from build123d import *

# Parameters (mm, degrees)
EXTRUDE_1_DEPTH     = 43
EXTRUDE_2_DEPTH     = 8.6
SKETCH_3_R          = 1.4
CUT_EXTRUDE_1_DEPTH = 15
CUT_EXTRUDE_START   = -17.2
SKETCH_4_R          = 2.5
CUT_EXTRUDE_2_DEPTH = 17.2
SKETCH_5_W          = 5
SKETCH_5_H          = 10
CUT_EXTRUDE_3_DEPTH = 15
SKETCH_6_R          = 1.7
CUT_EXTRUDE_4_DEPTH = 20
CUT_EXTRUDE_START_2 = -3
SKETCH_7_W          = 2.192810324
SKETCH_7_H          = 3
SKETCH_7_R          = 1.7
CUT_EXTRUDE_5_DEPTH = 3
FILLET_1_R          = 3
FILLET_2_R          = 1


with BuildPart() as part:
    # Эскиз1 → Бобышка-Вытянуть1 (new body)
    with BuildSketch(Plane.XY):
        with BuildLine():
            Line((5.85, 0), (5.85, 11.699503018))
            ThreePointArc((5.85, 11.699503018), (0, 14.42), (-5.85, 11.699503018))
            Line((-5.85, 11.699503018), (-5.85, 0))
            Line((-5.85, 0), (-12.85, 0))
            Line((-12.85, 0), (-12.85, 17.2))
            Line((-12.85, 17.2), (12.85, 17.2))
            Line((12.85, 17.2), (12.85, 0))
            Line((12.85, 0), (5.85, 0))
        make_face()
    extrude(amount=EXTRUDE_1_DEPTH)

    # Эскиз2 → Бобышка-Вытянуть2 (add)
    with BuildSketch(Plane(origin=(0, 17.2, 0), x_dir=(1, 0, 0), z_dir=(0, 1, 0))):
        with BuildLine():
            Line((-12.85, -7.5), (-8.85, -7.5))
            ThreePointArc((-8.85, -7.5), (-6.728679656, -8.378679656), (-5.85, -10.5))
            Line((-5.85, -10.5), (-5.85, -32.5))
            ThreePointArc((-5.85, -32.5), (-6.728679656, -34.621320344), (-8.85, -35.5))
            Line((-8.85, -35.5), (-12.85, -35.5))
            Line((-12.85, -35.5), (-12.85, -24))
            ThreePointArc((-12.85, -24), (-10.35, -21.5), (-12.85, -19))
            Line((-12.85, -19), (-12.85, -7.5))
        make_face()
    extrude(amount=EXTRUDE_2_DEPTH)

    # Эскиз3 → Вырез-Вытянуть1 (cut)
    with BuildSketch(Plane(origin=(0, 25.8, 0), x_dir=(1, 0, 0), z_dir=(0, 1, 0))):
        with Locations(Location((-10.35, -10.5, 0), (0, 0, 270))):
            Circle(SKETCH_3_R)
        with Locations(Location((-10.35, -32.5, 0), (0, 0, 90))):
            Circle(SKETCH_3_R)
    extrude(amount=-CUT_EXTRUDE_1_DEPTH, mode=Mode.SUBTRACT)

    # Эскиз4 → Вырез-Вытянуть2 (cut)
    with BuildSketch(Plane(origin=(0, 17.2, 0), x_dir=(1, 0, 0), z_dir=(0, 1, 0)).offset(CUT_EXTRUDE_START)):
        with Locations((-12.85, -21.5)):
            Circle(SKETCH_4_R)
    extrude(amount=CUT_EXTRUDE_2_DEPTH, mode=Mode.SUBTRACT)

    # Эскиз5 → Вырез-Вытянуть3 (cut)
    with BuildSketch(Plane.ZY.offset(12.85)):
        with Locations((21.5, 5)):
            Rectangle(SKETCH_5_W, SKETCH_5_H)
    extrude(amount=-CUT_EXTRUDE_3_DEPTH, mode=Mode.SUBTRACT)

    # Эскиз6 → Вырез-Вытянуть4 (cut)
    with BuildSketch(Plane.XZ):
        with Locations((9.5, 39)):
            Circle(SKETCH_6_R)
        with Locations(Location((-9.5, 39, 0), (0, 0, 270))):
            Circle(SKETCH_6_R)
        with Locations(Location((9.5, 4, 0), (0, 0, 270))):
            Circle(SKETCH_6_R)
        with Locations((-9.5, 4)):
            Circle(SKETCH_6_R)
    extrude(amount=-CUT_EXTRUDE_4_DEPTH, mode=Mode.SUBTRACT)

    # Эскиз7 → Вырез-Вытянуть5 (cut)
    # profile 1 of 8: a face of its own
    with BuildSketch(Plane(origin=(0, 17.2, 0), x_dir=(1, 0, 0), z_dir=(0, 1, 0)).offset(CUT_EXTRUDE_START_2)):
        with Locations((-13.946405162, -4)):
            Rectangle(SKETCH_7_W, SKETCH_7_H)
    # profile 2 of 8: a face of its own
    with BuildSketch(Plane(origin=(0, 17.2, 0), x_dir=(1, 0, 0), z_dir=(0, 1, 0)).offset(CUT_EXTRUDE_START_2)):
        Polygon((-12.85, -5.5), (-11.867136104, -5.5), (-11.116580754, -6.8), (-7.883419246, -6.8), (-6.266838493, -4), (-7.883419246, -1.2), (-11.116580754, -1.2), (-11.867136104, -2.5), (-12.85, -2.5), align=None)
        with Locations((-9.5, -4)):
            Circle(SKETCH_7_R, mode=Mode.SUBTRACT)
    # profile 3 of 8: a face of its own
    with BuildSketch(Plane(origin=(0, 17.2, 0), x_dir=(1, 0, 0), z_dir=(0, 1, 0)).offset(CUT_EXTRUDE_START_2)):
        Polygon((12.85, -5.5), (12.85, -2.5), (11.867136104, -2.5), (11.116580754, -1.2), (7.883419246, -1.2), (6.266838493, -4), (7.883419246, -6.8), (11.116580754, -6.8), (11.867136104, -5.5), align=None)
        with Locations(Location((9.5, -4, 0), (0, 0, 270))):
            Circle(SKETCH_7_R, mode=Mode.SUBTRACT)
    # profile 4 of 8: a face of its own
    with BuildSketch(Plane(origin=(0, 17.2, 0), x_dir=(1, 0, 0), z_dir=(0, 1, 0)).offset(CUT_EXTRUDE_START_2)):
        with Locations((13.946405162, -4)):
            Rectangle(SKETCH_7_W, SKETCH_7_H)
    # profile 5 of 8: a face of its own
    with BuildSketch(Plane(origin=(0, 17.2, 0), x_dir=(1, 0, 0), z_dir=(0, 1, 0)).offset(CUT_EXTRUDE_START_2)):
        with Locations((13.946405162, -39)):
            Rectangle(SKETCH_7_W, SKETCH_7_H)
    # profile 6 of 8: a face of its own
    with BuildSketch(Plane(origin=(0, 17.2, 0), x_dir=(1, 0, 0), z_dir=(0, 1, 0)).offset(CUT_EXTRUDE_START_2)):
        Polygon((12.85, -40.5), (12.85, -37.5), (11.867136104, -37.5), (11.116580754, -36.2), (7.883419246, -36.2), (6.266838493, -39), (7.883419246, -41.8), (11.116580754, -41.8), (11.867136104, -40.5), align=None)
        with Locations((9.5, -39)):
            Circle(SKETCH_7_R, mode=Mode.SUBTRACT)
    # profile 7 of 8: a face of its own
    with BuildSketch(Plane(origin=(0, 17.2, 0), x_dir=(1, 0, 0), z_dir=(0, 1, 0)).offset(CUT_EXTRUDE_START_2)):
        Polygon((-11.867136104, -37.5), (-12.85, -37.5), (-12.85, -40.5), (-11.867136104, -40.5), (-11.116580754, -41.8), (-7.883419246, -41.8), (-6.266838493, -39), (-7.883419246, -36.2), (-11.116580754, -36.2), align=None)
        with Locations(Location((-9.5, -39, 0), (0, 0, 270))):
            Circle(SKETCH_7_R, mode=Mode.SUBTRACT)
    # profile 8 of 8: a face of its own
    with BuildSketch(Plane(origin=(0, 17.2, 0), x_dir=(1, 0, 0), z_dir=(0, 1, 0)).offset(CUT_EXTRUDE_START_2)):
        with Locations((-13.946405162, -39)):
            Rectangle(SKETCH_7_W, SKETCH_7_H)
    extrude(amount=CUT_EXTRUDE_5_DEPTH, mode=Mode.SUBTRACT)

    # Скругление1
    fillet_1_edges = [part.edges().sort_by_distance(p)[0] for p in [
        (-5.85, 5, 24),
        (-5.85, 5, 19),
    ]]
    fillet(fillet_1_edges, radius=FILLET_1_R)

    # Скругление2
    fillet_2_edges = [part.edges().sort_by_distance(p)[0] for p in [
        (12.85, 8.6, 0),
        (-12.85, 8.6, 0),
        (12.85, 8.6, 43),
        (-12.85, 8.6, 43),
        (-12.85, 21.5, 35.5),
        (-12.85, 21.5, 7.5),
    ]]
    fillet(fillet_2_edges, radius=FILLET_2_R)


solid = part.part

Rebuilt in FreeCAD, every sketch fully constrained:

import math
import FreeCAD as App
import Part
import Sketcher
Q = App.Units.Quantity


def edges_at(feature, points):
    """Names of the edges that pass closest to the given points."""
    edges = feature.Shape.Edges
    near = lambda p: min(range(len(edges)), key=lambda i: edges[i].distToShape(Part.Vertex(*p))[0])
    return sorted({f"Edge{near(p) + 1}" for p in points})


def add_polygon(sketch, points):
    """Adds a closed chain of lines whose ends are joined by coincident constraints."""
    first, n = sketch.GeometryCount, len(points)
    for a, b in zip(points, points[1:] + points[:1]):
        sketch.addGeometry(Part.LineSegment(App.Vector(*a, 0), App.Vector(*b, 0)), False)
    for i in range(n):
        sketch.addConstraint(Sketcher.Constraint("Coincident", first + i, 2, first + (i + 1) % n, 1))

doc = App.newDocument("Part")
params = doc.addObject("Spreadsheet::Sheet", "Params")
for row, (alias, value) in enumerate([
    ("sketch1_width", "7 mm"),
    ("sketch1_radius", "7.65 mm"),
    ("sketch1_width2", "25.7 mm"),
    ("sketch1_height", "17.2 mm"),
    ("pad1_length", "43 mm"),
    ("sketch2_radius", "3 mm"),
    ("sketch2_radius2", "2.5 mm"),
    ("sketch2_width", "4 mm"),
    ("sketch2_height", "22 mm"),
    ("pad2_length", "8.6 mm"),
    ("sketch3_diameter", "2.8 mm"),
    ("pocket1_length", "15 mm"),
    ("sketch4_diameter", "5 mm"),
    ("pocket2_length", "17.2 mm"),
    ("sketch5_width", "10 mm"),
    ("sketch5_height", "5 mm"),
    ("pocket3_length", "15 mm"),
    ("sketch6_diameter", "3.4 mm"),
    ("pocket4_length", "20 mm"),
    ("sketch7_diameter", "3.4 mm"),
    ("sketch7_height", "3 mm"),
    ("pocket5_length", "3 mm"),
    ("fillet_radius", "3 mm"),
    ("fillet2_radius", "1 mm"),
], start=1):
    params.set(f"A{row}", alias)
    params.set(f"B{row}", "=" + value)
    params.setAlias(f"B{row}", alias)

body = doc.addObject("PartDesign::Body", "Body")

# Sketch on XY plane
sketch1 = body.newObject("Sketcher::SketchObject", "Sketch")
sketch1.AttachmentSupport = (doc.getObject("XY_Plane"), [""])
sketch1.MapMode = "FlatFace"
sketch1.addGeometry([
    Part.LineSegment(App.Vector(5.85, 11.699503, 0), App.Vector(5.85, 0, 0)),  # 0
    Part.LineSegment(App.Vector(5.85, 0, 0), App.Vector(12.85, 0, 0)),  # 1
    Part.LineSegment(App.Vector(12.85, 0, 0), App.Vector(12.85, 17.2, 0)),  # 2
    Part.LineSegment(App.Vector(12.85, 17.2, 0), App.Vector(-12.85, 17.2, 0)),  # 3
    Part.LineSegment(App.Vector(-12.85, 17.2, 0), App.Vector(-12.85, 0, 0)),  # 4
    Part.LineSegment(App.Vector(-12.85, 0, 0), App.Vector(-5.85, 0, 0)),  # 5
    Part.LineSegment(App.Vector(-5.85, 0, 0), App.Vector(-5.85, 11.699503, 0)),  # 6
    Part.ArcOfCircle(Part.Circle(App.Vector(0, 6.77, 0), App.Vector(0, 0, 1), 7.65), math.radians(40.119167), math.radians(139.880833)),  # 7
], False)
sketch1.addConstraint([
    Sketcher.Constraint("Coincident", 0, 2, 1, 1),
    Sketcher.Constraint("Coincident", 1, 2, 2, 1),
    Sketcher.Constraint("Coincident", 2, 2, 3, 1),
    Sketcher.Constraint("Coincident", 3, 2, 4, 1),
    Sketcher.Constraint("Coincident", 4, 2, 5, 1),
    Sketcher.Constraint("Coincident", 5, 2, 6, 1),
    Sketcher.Constraint("Coincident", 6, 2, 7, 2),
    Sketcher.Constraint("Coincident", 7, 1, 0, 1),
    Sketcher.Constraint("Vertical", 0),
    Sketcher.Constraint("Horizontal", 1),
    Sketcher.Constraint("Vertical", 2),
    Sketcher.Constraint("Horizontal", 3),
    Sketcher.Constraint("Vertical", 4),
    Sketcher.Constraint("Horizontal", 5),
    Sketcher.Constraint("Vertical", 6),
    Sketcher.Constraint("Symmetric", 1, 2, 4, 2, -1, 1),
    Sketcher.Constraint("Symmetric", 0, 2, 5, 2, -2),
    Sketcher.Constraint("PointOnObject", 7, 3, -2),
    Sketcher.Constraint("DistanceX", 1, 1, 1, 2, 7.0),
    Sketcher.Constraint("Radius", 7, 7.65),
    Sketcher.Constraint("DistanceX", 3, 2, 3, 1, 25.7),
    Sketcher.Constraint("DistanceY", 2, 1, 2, 2, 17.2),
    Sketcher.Constraint("DistanceY", -1, 1, 7, 3, 6.77),
])
sketch1.setExpression("Constraints[18]", "Params.sketch1_width")
sketch1.setExpression("Constraints[19]", "Params.sketch1_radius")
sketch1.setExpression("Constraints[20]", "Params.sketch1_width2")
sketch1.setExpression("Constraints[21]", "Params.sketch1_height")
pad1 = body.newObject("PartDesign::Pad", "Pad")
pad1.Profile = sketch1
pad1.setExpression("Length", "Params.pad1_length")

# Sketch on XZ plane
sketch2 = body.newObject("Sketcher::SketchObject", "Sketch001")
sketch2.AttachmentSupport = (doc.getObject("XZ_Plane"), [""])
sketch2.MapMode = "FlatFace"
sketch2.AttachmentOffset = App.Placement(App.Vector(0, 0, -17.2), App.Rotation())
sketch2.addGeometry([
    Part.LineSegment(App.Vector(-8.85, 7.5, 0), App.Vector(-12.85, 7.5, 0)),  # 0
    Part.LineSegment(App.Vector(-12.85, 7.5, 0), App.Vector(-12.85, 19, 0)),  # 1
    Part.ArcOfCircle(Part.Circle(App.Vector(-12.85, 21.5, 0), App.Vector(0, 0, 1), 2.5), math.radians(-90), math.radians(90)),  # 2
    Part.LineSegment(App.Vector(-12.85, 24, 0), App.Vector(-12.85, 35.5, 0)),  # 3
    Part.LineSegment(App.Vector(-12.85, 35.5, 0), App.Vector(-8.85, 35.5, 0)),  # 4
    Part.ArcOfCircle(Part.Circle(App.Vector(-8.85, 32.5, 0), App.Vector(0, 0, 1), 3), math.radians(0), math.radians(90)),  # 5
    Part.LineSegment(App.Vector(-5.85, 32.5, 0), App.Vector(-5.85, 10.5, 0)),  # 6
    Part.ArcOfCircle(Part.Circle(App.Vector(-8.85, 10.5, 0), App.Vector(0, 0, 1), 3), math.radians(-90), math.radians(0)),  # 7
], False)
sketch2.addConstraint([
    Sketcher.Constraint("Coincident", 0, 2, 1, 1),
    Sketcher.Constraint("Coincident", 1, 2, 2, 1),
    Sketcher.Constraint("Coincident", 2, 2, 3, 1),
    Sketcher.Constraint("Coincident", 3, 2, 4, 1),
    Sketcher.Constraint("Tangent", 4, 2, 5, 2),
    Sketcher.Constraint("Tangent", 5, 1, 6, 1),
    Sketcher.Constraint("Tangent", 6, 2, 7, 2),
    Sketcher.Constraint("Tangent", 7, 1, 0, 1),
    Sketcher.Constraint("Horizontal", 0),
    Sketcher.Constraint("Vertical", 1),
    Sketcher.Constraint("Vertical", 3),
    Sketcher.Constraint("Horizontal", 4),
    Sketcher.Constraint("Vertical", 6),
    Sketcher.Constraint("Equal", 5, 7),
    Sketcher.Constraint("Vertical", 2, 3, 0, 2),
    Sketcher.Constraint("Vertical", 1, 2, 2, 2),
    Sketcher.Constraint("Equal", 1, 3),
    Sketcher.Constraint("Radius", 5, 3.0),
    Sketcher.Constraint("Radius", 2, 2.5),
    Sketcher.Constraint("DistanceX", 0, 2, 0, 1, 4.0),
    Sketcher.Constraint("DistanceY", 6, 2, 6, 1, 22.0),
    Sketcher.Constraint("DistanceY", -1, 1, 1, 2, 19.0),
    Sketcher.Constraint("DistanceX", 2, 3, -1, 1, 12.85),
])
sketch2.setExpression("Constraints[17]", "Params.sketch2_radius")
sketch2.setExpression("Constraints[18]", "Params.sketch2_radius2")
sketch2.setExpression("Constraints[19]", "Params.sketch2_width")
sketch2.setExpression("Constraints[20]", "Params.sketch2_height")
pad2 = body.newObject("PartDesign::Pad", "Pad001")
pad2.Profile = sketch2
pad2.setExpression("Length", "Params.pad2_length")
pad2.Reversed = True

# Sketch on XZ plane
sketch3 = body.newObject("Sketcher::SketchObject", "Sketch002")
sketch3.AttachmentSupport = (doc.getObject("XZ_Plane"), [""])
sketch3.MapMode = "FlatFace"
sketch3.AttachmentOffset = App.Placement(App.Vector(0, 0, -25.8), App.Rotation())
sketch3.addGeometry([
    Part.Circle(App.Vector(-10.35, 10.5, 0), App.Vector(0, 0, 1), 1.4),
    Part.Circle(App.Vector(-10.35, 32.5, 0), App.Vector(0, 0, 1), 1.4),
], False)
sketch3.addConstraint([
    Sketcher.Constraint("Equal", 0, 1),
    Sketcher.Constraint("Vertical", 0, 3, 1, 3),
    Sketcher.Constraint("Diameter", 0, 2.8),
    Sketcher.Constraint("DistanceY", 0, 3, 1, 3, 22.0),
    Sketcher.Constraint("DistanceY", -1, 1, 0, 3, 10.5),
    Sketcher.Constraint("DistanceX", 0, 3, -1, 1, 10.35),
])
sketch3.setExpression("Constraints[2]", "Params.sketch3_diameter")
pocket1 = body.newObject("PartDesign::Pocket", "Pocket")
pocket1.Profile = sketch3
pocket1.setExpression("Length", "Params.pocket1_length")
pocket1.Reversed = True

# Sketch on XZ plane
sketch4 = body.newObject("Sketcher::SketchObject", "Sketch003")
sketch4.AttachmentSupport = (doc.getObject("XZ_Plane"), [""])
sketch4.MapMode = "FlatFace"
sketch4.addGeometry(Part.Circle(App.Vector(-12.85, 21.5, 0), App.Vector(0, 0, 1), 2.5), False)
sketch4.addConstraint([
    Sketcher.Constraint("Diameter", 0, 5.0),
    Sketcher.Constraint("DistanceY", -1, 1, 0, 3, 21.5),
    Sketcher.Constraint("DistanceX", 0, 3, -1, 1, 12.85),
])
sketch4.setExpression("Constraints[0]", "Params.sketch4_diameter")
pocket2 = body.newObject("PartDesign::Pocket", "Pocket001")
pocket2.Profile = sketch4
pocket2.setExpression("Length", "Params.pocket2_length")

# Sketch on YZ plane
sketch5 = body.newObject("Sketcher::SketchObject", "Sketch004")
sketch5.AttachmentSupport = (doc.getObject("YZ_Plane"), [""])
sketch5.MapMode = "FlatFace"
sketch5.AttachmentOffset = App.Placement(App.Vector(0, 0, -12.85), App.Rotation())
add_polygon(sketch5, [(10, 19), (0, 19), (0, 24), (10, 24)])  # lines 0-3
sketch5.addConstraint([
    Sketcher.Constraint("Horizontal", 0),
    Sketcher.Constraint("Vertical", 1),
    Sketcher.Constraint("Horizontal", 2),
    Sketcher.Constraint("Vertical", 3),
    Sketcher.Constraint("PointOnObject", 0, 2, -2),
    Sketcher.Constraint("DistanceX", 0, 2, 0, 1, 10.0),
    Sketcher.Constraint("DistanceY", 1, 1, 1, 2, 5.0),
    Sketcher.Constraint("DistanceY", -1, 1, 0, 2, 19.0),
])
sketch5.setExpression("Constraints[9]", "Params.sketch5_width")
sketch5.setExpression("Constraints[10]", "Params.sketch5_height")
pocket3 = body.newObject("PartDesign::Pocket", "Pocket002")
pocket3.Profile = sketch5
pocket3.setExpression("Length", "Params.pocket3_length")
pocket3.Reversed = True

# Sketch on XZ plane
sketch6 = body.newObject("Sketcher::SketchObject", "Sketch005")
sketch6.AttachmentSupport = (doc.getObject("XZ_Plane"), [""])
sketch6.MapMode = "FlatFace"
sketch6.addGeometry([
    Part.Circle(App.Vector(9.5, 39, 0), App.Vector(0, 0, 1), 1.7),
    Part.Circle(App.Vector(-9.5, 39, 0), App.Vector(0, 0, 1), 1.7),
    Part.Circle(App.Vector(9.5, 4, 0), App.Vector(0, 0, 1), 1.7),
    Part.Circle(App.Vector(-9.5, 4, 0), App.Vector(0, 0, 1), 1.7),
], False)
sketch6.addConstraint([
    Sketcher.Constraint("Equal", 0, 1),
    Sketcher.Constraint("Equal", 1, 2),
    Sketcher.Constraint("Equal", 2, 3),
    Sketcher.Constraint("Symmetric", 0, 3, 1, 3, -2),
    Sketcher.Constraint("Symmetric", 2, 3, 3, 3, -2),
    Sketcher.Constraint("Vertical", 0, 3, 2, 3),
    Sketcher.Constraint("Diameter", 0, 3.4),
    Sketcher.Constraint("DistanceY", -1, 1, 0, 3, 39.0),
    Sketcher.Constraint("DistanceY", -1, 1, 2, 3, 4.0),
    Sketcher.Constraint("DistanceX", 1, 3, 0, 3, 19.0),
])
sketch6.setExpression("Constraints[6]", "Params.sketch6_diameter")
pocket4 = body.newObject("PartDesign::Pocket", "Pocket003")
pocket4.Profile = sketch6
pocket4.setExpression("Length", "Params.pocket4_length")

# Sketch on XZ plane
sketch7 = body.newObject("Sketcher::SketchObject", "Sketch006")
sketch7.AttachmentSupport = (doc.getObject("XZ_Plane"), [""])
sketch7.MapMode = "FlatFace"
sketch7.AttachmentOffset = App.Placement(App.Vector(0, 0, -14.2), App.Rotation())
add_polygon(sketch7, [(-15.04281, 2.5), (-15.04281, 5.5), (-11.867136, 5.5), (-11.116581, 6.8), (-7.883419, 6.8), (-6.266838, 4), (-7.883419, 1.2), (-11.116581, 1.2), (-11.867136, 2.5)])  # lines 0-8
sketch7.addGeometry(Part.Circle(App.Vector(-9.5, 4, 0), App.Vector(0, 0, 1), 1.7), False)  # 9
add_polygon(sketch7, [(11.867136, 5.5), (15.04281, 5.5), (15.04281, 2.5), (11.867136, 2.5), (11.116581, 1.2), (7.883419, 1.2), (6.266838, 4), (7.883419, 6.8), (11.116581, 6.8)])  # lines 10-18
sketch7.addGeometry(Part.Circle(App.Vector(9.5, 4, 0), App.Vector(0, 0, 1), 1.7), False)  # 19
add_polygon(sketch7, [(15.04281, 40.5), (15.04281, 37.5), (11.867136, 37.5), (11.116581, 36.2), (7.883419, 36.2), (6.266838, 39), (7.883419, 41.8), (11.116581, 41.8), (11.867136, 40.5)])  # lines 20-28
sketch7.addGeometry(Part.Circle(App.Vector(9.5, 39, 0), App.Vector(0, 0, 1), 1.7), False)  # 29
add_polygon(sketch7, [(-11.867136, 37.5), (-15.04281, 37.5), (-15.04281, 40.5), (-11.867136, 40.5), (-11.116581, 41.8), (-7.883419, 41.8), (-6.266838, 39), (-7.883419, 36.2), (-11.116581, 36.2)])  # lines 30-38
sketch7.addGeometry(Part.Circle(App.Vector(-9.5, 39, 0), App.Vector(0, 0, 1), 1.7), False)  # 39
sketch7.addConstraint([
    Sketcher.Constraint("Vertical", 0),
    Sketcher.Constraint("Horizontal", 1),
    Sketcher.Constraint("Horizontal", 3),
    Sketcher.Constraint("Horizontal", 6),
    Sketcher.Constraint("Horizontal", 8),
    Sketcher.Constraint("Horizontal", 10),
    Sketcher.Constraint("Vertical", 11),
    Sketcher.Constraint("Horizontal", 12),
    Sketcher.Constraint("Horizontal", 14),
    Sketcher.Constraint("Horizontal", 17),
    Sketcher.Constraint("Vertical", 20),
    Sketcher.Constraint("Horizontal", 21),
    Sketcher.Constraint("Horizontal", 23),
    Sketcher.Constraint("Horizontal", 26),
    Sketcher.Constraint("Horizontal", 28),
    Sketcher.Constraint("Horizontal", 30),
    Sketcher.Constraint("Vertical", 31),
    Sketcher.Constraint("Horizontal", 32),
    Sketcher.Constraint("Horizontal", 34),
    Sketcher.Constraint("Horizontal", 37),
    Sketcher.Constraint("Equal", 9, 19),
    Sketcher.Constraint("Equal", 19, 29),
    Sketcher.Constraint("Equal", 29, 39),
    Sketcher.Constraint("Symmetric", 9, 3, 19, 3, -2),
    Sketcher.Constraint("Symmetric", 29, 3, 39, 3, -2),
    Sketcher.Constraint("Symmetric", 0, 2, 10, 2, -2),
    Sketcher.Constraint("Symmetric", 7, 2, 12, 2, -2),
    Sketcher.Constraint("Symmetric", 6, 2, 13, 2, -2),
    Sketcher.Constraint("Symmetric", 4, 2, 15, 2, -2),
    Sketcher.Constraint("Symmetric", 3, 2, 16, 2, -2),
    Sketcher.Constraint("Symmetric", 20, 2, 30, 2, -2),
    Sketcher.Constraint("Symmetric", 27, 2, 32, 2, -2),
    Sketcher.Constraint("Symmetric", 26, 2, 33, 2, -2),
    Sketcher.Constraint("Symmetric", 24, 2, 35, 2, -2),
    Sketcher.Constraint("Symmetric", 23, 2, 36, 2, -2),
    Sketcher.Constraint("Parallel", 2, 5),
    Sketcher.Constraint("Parallel", 4, 7),
    Sketcher.Constraint("Parallel", 5, 13),
    Sketcher.Constraint("Parallel", 7, 15),
    Sketcher.Constraint("Parallel", 15, 18),
    Sketcher.Constraint("Parallel", 16, 22),
    Sketcher.Constraint("Parallel", 18, 24),
    Sketcher.Constraint("Parallel", 22, 25),
    Sketcher.Constraint("Parallel", 24, 27),
    Sketcher.Constraint("Parallel", 27, 35),
    Sketcher.Constraint("Parallel", 35, 38),
    Sketcher.Constraint("Horizontal", 19, 3, 4, 2),
    Sketcher.Constraint("Horizontal", 39, 3, 24, 2),
    Sketcher.Constraint("Vertical", 19, 3, 29, 3),
    Sketcher.Constraint("Vertical", 3, 2, 5, 2),
    Sketcher.Constraint("Vertical", 2, 2, 6, 2),
    Sketcher.Constraint("Vertical", 1, 2, 7, 2),
    Sketcher.Constraint("Vertical", 13, 2, 17, 2),
    Sketcher.Constraint("Vertical", 11, 2, 20, 2),
    Sketcher.Constraint("Vertical", 18, 2, 21, 2),
    Sketcher.Constraint("Vertical", 17, 2, 22, 2),
    Sketcher.Constraint("Vertical", 16, 2, 23, 2),
    Sketcher.Constraint("Vertical", 15, 2, 24, 2),
    Sketcher.Constraint("Vertical", 23, 2, 25, 2),
    Sketcher.Constraint("Vertical", 22, 2, 26, 2),
    Sketcher.Constraint("Vertical", 21, 2, 27, 2),
    Sketcher.Constraint("Vertical", 33, 2, 37, 2),
    Sketcher.Constraint("Diameter", 9, 3.4),
    Sketcher.Constraint("DistanceY", 0, 1, 0, 2, 3.0),
    Sketcher.Constraint("Angle", 2, Q("60 deg")),
    Sketcher.Constraint("DistanceY", -1, 1, 9, 3, 4.0),
    Sketcher.Constraint("DistanceY", -1, 1, 29, 3, 39.0),
    Sketcher.Constraint("DistanceX", 9, 3, 19, 3, 19.0),
    Sketcher.Constraint("DistanceY", -1, 1, 2, 2, 6.8),
    Sketcher.Constraint("DistanceX", 3, 1, 3, 2, 3.233162),
    Sketcher.Constraint("DistanceX", 1, 1, 1, 2, 3.175674),
    Sketcher.Constraint("DistanceX", 0, 2, -1, 1, 15.04281),
])
sketch7.setExpression("Constraints[98]", "Params.sketch7_diameter")
sketch7.setExpression("Constraints[99]", "Params.sketch7_height")
pocket5 = body.newObject("PartDesign::Pocket", "Pocket004")
pocket5.Profile = sketch7
pocket5.setExpression("Length", "Params.pocket5_length")
doc.recompute()

fillet = body.newObject("PartDesign::Fillet", "Fillet")
fillet.Base = (pocket5, edges_at(pocket5, [(-5.85, 5, 24), (-5.85, 5, 19)]))
fillet.setExpression("Radius", "Params.fillet_radius")
doc.recompute()

fillet2 = body.newObject("PartDesign::Fillet", "Fillet001")
fillet2.Base = (fillet, edges_at(fillet, [
    (12.85, 8.6, 0),
    (-12.85, 8.6, 0),
    (12.85, 8.6, 43),
    (-12.85, 8.6, 43),
    (-12.85, 21.5, 35.5),
    (-12.85, 21.5, 7.5),
]))
fillet2.setExpression("Radius", "Params.fillet2_radius")

doc.recompute()
